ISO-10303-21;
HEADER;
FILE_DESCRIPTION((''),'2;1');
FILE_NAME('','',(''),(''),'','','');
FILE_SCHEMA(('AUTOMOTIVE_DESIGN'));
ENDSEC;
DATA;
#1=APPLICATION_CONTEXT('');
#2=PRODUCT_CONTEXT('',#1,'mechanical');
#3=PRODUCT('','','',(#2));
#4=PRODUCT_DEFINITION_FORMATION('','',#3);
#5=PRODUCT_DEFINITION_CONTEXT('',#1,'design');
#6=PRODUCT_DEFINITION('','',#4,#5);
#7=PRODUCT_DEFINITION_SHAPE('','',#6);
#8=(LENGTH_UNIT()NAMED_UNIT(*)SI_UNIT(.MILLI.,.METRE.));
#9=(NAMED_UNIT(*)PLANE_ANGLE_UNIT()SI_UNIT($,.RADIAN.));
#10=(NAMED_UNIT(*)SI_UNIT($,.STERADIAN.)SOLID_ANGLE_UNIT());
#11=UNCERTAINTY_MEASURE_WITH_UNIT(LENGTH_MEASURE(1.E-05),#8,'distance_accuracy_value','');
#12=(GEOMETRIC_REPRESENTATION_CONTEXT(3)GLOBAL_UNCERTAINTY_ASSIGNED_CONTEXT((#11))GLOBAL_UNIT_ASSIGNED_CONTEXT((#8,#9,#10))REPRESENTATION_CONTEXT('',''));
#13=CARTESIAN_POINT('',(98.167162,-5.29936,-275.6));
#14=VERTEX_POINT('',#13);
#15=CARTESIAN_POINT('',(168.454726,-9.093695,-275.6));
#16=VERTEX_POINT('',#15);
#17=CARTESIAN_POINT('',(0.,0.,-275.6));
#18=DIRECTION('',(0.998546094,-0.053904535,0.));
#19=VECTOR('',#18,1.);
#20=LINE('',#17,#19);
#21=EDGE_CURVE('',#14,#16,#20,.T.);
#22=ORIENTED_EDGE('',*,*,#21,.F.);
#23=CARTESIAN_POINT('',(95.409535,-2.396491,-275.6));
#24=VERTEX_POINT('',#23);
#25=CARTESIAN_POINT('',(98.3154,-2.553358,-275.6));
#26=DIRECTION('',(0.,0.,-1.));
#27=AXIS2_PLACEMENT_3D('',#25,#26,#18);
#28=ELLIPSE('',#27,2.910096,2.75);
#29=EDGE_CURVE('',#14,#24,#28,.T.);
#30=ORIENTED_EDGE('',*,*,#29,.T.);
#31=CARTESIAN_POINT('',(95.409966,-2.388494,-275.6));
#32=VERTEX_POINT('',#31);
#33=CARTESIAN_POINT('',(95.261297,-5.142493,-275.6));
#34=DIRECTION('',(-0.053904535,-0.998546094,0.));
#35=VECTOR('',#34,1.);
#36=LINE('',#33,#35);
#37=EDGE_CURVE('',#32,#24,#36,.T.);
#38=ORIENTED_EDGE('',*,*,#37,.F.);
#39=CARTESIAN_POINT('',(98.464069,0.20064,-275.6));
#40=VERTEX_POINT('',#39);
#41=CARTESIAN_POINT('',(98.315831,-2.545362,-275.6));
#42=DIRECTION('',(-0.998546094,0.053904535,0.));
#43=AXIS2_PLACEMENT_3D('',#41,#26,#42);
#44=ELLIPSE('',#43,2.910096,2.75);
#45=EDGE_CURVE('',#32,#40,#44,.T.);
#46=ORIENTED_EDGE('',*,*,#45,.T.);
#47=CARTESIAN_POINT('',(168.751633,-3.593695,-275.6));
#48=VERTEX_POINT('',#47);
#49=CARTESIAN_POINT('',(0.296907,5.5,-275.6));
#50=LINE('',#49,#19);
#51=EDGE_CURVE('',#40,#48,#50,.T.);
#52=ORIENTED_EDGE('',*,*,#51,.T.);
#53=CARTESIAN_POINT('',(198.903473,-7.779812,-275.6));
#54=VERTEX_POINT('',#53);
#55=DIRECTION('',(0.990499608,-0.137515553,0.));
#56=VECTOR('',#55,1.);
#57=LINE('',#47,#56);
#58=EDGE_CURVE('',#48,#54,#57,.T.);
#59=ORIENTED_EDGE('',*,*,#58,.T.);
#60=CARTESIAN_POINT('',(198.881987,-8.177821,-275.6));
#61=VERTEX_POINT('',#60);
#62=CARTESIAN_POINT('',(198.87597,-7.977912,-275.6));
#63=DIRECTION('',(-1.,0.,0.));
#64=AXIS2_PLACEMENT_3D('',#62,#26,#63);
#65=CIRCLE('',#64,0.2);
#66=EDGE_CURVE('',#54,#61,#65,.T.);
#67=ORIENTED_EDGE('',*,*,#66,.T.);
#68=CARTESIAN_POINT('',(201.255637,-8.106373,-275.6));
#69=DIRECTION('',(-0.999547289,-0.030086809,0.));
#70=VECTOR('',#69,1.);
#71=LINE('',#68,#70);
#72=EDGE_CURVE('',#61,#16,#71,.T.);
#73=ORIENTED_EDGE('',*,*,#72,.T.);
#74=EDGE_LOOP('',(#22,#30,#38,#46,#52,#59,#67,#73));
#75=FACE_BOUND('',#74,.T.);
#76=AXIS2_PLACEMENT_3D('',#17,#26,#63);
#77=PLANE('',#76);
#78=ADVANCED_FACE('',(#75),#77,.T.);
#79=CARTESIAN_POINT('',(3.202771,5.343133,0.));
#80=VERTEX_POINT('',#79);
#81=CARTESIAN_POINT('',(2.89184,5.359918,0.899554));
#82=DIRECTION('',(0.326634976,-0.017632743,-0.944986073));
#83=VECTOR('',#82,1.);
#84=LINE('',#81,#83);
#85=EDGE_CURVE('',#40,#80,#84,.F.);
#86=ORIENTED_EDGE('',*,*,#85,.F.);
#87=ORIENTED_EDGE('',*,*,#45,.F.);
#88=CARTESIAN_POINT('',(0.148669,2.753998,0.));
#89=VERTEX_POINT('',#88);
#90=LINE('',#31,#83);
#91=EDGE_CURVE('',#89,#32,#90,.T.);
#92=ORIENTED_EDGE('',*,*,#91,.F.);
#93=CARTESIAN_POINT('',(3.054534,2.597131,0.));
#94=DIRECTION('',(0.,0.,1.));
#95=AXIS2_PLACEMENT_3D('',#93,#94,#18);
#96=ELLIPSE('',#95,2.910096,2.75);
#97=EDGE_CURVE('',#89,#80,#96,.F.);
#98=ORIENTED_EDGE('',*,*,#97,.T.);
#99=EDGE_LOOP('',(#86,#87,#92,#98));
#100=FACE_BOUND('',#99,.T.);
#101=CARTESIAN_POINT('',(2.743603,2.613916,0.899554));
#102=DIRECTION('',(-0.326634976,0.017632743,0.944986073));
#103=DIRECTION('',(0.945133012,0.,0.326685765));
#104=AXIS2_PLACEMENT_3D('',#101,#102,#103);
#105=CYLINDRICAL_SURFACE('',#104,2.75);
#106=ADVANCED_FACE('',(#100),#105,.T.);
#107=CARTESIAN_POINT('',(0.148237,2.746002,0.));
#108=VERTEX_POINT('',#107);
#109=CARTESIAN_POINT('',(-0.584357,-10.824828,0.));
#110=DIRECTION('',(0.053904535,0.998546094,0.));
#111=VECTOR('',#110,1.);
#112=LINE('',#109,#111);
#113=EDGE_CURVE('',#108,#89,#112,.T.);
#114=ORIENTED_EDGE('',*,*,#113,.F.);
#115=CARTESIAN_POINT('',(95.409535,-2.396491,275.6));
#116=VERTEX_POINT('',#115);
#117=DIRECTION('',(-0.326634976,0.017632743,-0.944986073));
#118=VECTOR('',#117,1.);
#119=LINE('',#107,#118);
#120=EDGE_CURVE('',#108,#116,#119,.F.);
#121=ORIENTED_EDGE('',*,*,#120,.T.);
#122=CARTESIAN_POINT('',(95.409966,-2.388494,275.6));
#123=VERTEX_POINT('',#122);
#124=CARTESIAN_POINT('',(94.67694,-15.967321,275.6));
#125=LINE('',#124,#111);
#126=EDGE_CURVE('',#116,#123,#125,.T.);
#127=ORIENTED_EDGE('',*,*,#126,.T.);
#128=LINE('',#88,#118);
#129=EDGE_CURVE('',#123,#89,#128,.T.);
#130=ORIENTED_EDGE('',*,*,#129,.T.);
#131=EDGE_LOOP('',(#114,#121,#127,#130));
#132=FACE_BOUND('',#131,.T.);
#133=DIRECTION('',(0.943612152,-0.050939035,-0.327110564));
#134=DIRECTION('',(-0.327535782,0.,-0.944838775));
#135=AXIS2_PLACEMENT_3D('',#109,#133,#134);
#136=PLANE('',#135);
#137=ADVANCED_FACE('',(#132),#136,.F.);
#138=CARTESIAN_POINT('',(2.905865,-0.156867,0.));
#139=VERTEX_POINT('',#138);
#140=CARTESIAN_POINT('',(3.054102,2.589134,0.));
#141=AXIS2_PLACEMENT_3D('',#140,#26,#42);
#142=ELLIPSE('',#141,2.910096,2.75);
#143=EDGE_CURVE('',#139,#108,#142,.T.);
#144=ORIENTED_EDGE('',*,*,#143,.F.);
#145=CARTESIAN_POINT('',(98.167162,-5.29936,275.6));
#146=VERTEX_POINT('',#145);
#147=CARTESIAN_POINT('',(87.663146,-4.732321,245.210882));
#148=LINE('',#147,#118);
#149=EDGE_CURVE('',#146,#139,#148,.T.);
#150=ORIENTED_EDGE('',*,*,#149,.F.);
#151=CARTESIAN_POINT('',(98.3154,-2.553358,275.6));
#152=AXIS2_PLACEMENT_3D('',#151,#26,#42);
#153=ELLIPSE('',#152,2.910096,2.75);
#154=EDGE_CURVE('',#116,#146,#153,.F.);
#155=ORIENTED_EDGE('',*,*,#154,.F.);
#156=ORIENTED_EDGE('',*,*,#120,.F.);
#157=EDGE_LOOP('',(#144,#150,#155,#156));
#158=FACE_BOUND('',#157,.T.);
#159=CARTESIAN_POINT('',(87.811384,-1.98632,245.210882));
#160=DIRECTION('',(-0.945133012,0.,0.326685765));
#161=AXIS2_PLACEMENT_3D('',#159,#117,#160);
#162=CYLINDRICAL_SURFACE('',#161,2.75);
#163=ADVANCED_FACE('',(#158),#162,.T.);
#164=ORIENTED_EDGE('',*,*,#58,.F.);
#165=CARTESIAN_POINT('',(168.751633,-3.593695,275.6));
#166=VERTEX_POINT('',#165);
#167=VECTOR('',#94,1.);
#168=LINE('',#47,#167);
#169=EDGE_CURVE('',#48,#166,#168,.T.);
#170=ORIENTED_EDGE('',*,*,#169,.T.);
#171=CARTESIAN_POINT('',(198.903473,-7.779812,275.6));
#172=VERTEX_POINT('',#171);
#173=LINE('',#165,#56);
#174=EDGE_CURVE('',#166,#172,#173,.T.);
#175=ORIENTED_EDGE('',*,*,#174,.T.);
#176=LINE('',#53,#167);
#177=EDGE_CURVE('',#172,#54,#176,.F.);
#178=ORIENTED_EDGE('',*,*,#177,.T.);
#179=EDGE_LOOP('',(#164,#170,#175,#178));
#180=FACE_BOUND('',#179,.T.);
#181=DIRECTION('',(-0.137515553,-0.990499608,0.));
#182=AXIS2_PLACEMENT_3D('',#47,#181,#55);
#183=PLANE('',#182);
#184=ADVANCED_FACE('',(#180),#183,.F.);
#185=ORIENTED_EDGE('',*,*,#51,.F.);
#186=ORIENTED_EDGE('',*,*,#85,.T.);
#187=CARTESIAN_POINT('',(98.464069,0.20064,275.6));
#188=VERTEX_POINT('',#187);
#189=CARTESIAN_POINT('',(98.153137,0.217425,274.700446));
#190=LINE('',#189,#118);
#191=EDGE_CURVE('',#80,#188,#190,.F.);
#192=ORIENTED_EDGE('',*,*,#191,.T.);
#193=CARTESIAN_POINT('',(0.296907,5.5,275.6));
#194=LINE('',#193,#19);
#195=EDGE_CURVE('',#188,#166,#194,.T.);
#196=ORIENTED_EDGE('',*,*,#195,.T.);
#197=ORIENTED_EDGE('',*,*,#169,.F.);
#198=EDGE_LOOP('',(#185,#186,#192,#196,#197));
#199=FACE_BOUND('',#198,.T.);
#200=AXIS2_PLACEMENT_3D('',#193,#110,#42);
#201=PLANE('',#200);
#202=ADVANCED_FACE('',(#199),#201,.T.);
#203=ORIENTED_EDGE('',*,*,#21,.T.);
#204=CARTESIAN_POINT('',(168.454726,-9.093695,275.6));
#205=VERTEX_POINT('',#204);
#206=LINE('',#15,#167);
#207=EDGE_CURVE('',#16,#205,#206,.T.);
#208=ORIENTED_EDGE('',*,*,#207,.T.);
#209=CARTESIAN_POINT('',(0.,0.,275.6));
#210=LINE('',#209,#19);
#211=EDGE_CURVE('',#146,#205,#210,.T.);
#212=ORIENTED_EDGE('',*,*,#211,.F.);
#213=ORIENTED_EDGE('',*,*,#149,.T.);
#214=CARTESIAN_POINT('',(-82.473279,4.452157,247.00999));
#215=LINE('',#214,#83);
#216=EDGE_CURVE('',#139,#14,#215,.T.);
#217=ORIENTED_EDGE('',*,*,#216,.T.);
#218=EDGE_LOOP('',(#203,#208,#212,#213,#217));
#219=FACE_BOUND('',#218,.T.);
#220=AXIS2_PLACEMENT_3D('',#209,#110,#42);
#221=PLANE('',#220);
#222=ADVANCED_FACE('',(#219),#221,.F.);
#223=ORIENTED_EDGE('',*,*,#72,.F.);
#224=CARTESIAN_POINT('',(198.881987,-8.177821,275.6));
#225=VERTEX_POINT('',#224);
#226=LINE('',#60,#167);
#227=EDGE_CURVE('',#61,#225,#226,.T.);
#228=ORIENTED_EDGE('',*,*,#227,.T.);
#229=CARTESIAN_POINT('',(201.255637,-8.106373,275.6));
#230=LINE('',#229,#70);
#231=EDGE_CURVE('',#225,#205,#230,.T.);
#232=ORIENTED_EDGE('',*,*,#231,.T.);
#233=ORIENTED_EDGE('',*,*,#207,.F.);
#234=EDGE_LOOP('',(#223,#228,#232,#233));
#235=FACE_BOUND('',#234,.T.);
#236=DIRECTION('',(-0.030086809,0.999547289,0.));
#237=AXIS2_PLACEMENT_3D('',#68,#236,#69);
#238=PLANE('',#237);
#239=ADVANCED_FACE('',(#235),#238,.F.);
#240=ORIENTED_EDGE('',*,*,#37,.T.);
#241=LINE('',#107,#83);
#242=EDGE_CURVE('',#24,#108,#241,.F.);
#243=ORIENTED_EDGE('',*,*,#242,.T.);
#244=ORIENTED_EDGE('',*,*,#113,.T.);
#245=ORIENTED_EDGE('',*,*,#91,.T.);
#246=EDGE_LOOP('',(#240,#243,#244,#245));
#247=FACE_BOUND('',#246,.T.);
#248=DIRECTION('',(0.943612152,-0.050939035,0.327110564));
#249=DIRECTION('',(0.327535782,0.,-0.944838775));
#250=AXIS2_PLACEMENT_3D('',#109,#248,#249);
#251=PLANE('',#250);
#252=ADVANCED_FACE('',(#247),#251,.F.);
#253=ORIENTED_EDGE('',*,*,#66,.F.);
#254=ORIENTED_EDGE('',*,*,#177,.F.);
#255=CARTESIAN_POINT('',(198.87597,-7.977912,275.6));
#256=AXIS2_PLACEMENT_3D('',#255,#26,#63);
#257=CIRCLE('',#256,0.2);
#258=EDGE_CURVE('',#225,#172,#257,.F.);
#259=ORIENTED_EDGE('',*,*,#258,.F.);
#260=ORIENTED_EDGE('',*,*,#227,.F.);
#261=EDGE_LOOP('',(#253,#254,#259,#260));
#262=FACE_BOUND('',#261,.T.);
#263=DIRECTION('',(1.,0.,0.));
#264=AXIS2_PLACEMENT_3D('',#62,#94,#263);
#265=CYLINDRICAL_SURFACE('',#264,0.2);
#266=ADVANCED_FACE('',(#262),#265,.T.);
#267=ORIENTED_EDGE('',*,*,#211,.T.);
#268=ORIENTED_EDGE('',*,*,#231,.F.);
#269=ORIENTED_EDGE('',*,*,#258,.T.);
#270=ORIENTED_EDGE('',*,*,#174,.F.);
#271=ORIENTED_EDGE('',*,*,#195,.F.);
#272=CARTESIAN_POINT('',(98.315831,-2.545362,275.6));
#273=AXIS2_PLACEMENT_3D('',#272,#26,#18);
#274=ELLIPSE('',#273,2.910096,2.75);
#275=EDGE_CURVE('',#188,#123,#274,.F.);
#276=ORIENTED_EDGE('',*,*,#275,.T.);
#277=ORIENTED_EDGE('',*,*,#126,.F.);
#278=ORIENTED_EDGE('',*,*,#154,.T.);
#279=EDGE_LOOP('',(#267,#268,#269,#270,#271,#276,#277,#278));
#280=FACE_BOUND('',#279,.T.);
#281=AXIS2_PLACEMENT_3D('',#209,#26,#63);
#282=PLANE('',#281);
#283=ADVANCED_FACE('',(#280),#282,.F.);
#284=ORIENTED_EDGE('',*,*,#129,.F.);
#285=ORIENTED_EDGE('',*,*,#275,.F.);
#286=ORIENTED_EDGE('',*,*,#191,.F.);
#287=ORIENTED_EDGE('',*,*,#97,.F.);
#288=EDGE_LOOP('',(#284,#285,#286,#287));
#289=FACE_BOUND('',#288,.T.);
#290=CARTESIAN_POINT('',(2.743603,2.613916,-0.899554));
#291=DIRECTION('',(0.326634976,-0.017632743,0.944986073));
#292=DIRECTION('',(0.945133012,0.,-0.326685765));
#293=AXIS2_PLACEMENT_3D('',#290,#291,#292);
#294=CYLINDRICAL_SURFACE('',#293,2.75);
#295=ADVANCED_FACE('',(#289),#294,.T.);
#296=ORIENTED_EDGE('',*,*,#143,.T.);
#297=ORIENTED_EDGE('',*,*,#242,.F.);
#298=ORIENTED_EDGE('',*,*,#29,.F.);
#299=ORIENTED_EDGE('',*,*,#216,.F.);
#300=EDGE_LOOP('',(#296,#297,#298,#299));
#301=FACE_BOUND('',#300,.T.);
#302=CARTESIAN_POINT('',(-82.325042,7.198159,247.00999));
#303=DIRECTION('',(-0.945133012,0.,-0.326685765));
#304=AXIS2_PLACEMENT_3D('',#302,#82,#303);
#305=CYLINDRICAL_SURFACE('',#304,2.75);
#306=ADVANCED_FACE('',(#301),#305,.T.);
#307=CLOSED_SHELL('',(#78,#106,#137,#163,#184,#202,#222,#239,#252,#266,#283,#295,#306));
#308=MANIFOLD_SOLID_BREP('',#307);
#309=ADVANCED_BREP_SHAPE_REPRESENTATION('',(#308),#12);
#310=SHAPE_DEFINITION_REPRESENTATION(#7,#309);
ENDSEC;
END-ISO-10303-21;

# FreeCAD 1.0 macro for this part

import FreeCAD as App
import Part
import Sketcher
from FreeCAD import Vector
Q = App.Units.Quantity


def edges_at(feature, points):
    """Names of the edges that pass closest to the given points."""
    edges = feature.Shape.Edges
    near = lambda p: min(range(len(edges)), key=lambda i: edges[i].distToShape(Part.Vertex(*p))[0])
    return sorted({f"Edge{near(p) + 1}" for p in points})


def add_polygon(sketch, points):
    """Adds a closed chain of lines whose ends are joined by coincident constraints."""
    first, n = sketch.GeometryCount, len(points)
    for a, b in zip(points, points[1:] + points[:1]):
        sketch.addGeometry(Part.LineSegment(App.Vector(*a, 0), App.Vector(*b, 0)), False)
    for i in range(n):
        sketch.addConstraint(Sketcher.Constraint("Coincident", first + i, 2, first + (i + 1) % n, 1))

doc = App.newDocument("Part")
body = doc.addObject("PartDesign::Body", "Body")

# Sketch on XY plane
sketch1 = body.newObject("Sketcher::SketchObject", "Sketch")
sketch1.AttachmentSupport = (doc.getObject("XY_Plane"), [""])
sketch1.MapMode = "FlatFace"
add_polygon(sketch1, [(0, 0), (201, -11), (201, -5), (0, 6)])  # lines 0-3
sketch1.addConstraint(Sketcher.Constraint("Coincident", 3, 2, -1, 1))
sketch1.addConstraint(Sketcher.Constraint("Perpendicular", 0, 1))
sketch1.addConstraint(Sketcher.Constraint("Perpendicular", 1, 2))
sketch1.addConstraint(Sketcher.Constraint("Perpendicular", 2, 3))
sketch1.addConstraint(Sketcher.Constraint("Distance", 0, 201.4))
sketch1.addConstraint(Sketcher.Constraint("DistanceY", -1, 1, 2, 2, 5.5))
sketch1.addConstraint(Sketcher.Constraint("Angle", 0, Q("-3.09 deg")))
pad1 = body.newObject("PartDesign::Pad", "Pad")
pad1.Profile = sketch1
pad1.Length = 551.2
pad1.Midplane = True

# Sketch on an angled plane
sketch2 = body.newObject("Sketcher::SketchObject", "Sketch001")
sketch2.Placement = App.Placement(Vector(0.296907, 5.5, 0), App.Rotation(Vector(0.998546094, -0.053904535, 0), Vector(0, 0, -1.000000001), Vector(0.053904535, 0.998546094, 0), "ZXY"))
add_polygon(sketch2, [(0, 0), (95, 276), (0, 276)])  # lines 0-2
sketch2.addConstraint(Sketcher.Constraint("Horizontal", 1))
sketch2.addConstraint(Sketcher.Constraint("Vertical", 2))
sketch2.addConstraint(Sketcher.Constraint("Coincident", 2, 2, -1, 1))
sketch2.addConstraint(Sketcher.Constraint("DistanceX", 1, 2, 1, 1, 95.4))
sketch2.addConstraint(Sketcher.Constraint("DistanceY", 2, 2, 2, 1, 275.6))
pocket1 = body.newObject("PartDesign::Pocket", "Pocket")
pocket1.Profile = sketch2
pocket1.Type = "ThroughAll"

# Sketch on an angled plane
sketch3 = body.newObject("Sketcher::SketchObject", "Sketch002")
sketch3.Placement = App.Placement(Vector(0.296907, 5.5, 0), App.Rotation(Vector(0.998546094, -0.053904535, 0), Vector(0, 0, -1.000000001), Vector(0.053904535, 0.998546094, 0), "ZXY"))
add_polygon(sketch3, [(95, -276), (0, 0), (0, -276)])  # lines 0-2
sketch3.addConstraint(Sketcher.Constraint("Vertical", 1))
sketch3.addConstraint(Sketcher.Constraint("Horizontal", 2))
sketch3.addConstraint(Sketcher.Constraint("Coincident", 0, 2, -1, 1))
sketch3.addConstraint(Sketcher.Constraint("DistanceX", 2, 1, 2, 2, 95.4))
sketch3.addConstraint(Sketcher.Constraint("DistanceY", 1, 2, 1, 1, 275.6))
pocket2 = body.newObject("PartDesign::Pocket", "Pocket001")
pocket2.Profile = sketch3
pocket2.Type = "ThroughAll"

# Sketch on XY plane
sketch4 = body.newObject("Sketcher::SketchObject", "Sketch003")
sketch4.AttachmentSupport = (doc.getObject("XY_Plane"), [""])
sketch4.MapMode = "FlatFace"
sketch4.AttachmentOffset = App.Placement(Vector(0, 0, 275.6), App.Rotation())
add_polygon(sketch4, [(168.8, -3.6), (201.3, -8.1), (201.4, -5.4)])  # lines 0-2
sketch4.addConstraint(Sketcher.Constraint("Perpendicular", 1, 2))
sketch4.addConstraint(Sketcher.Constraint("Distance", 2, 32.7))
sketch4.addConstraint(Sketcher.Constraint("Angle", 1, Q("86.91 deg")))
sketch4.addConstraint(Sketcher.Constraint("DistanceY", 0, 2, 1, 2, 2.75))
sketch4.addConstraint(Sketcher.Constraint("DistanceX", -1, 1, 1, 2, 201.40409))
sketch4.addConstraint(Sketcher.Constraint("DistanceY", 0, 2, -1, 1, 8.106373))
pocket3 = body.newObject("PartDesign::Pocket", "Pocket002")
pocket3.Profile = sketch4
pocket3.Type = "ThroughAll"

# Sketch on XY plane
sketch5 = body.newObject("Sketcher::SketchObject", "Sketch004")
sketch5.AttachmentSupport = (doc.getObject("XY_Plane"), [""])
sketch5.MapMode = "FlatFace"
sketch5.AttachmentOffset = App.Placement(Vector(0, 0, 275.6), App.Rotation())
add_polygon(sketch5, [(201.3, -8.1), (168.5, -9.1), (201.1, -10.9)])  # lines 0-2
sketch5.addConstraint(Sketcher.Constraint("Perpendicular", 1, 2))
sketch5.addConstraint(Sketcher.Constraint("Distance", 1, 32.7))
sketch5.addConstraint(Sketcher.Constraint("Angle", 1, Q("-3.09 deg")))
sketch5.addConstraint(Sketcher.Constraint("DistanceY", 1, 2, 2, 2, 2.75))
sketch5.addConstraint(Sketcher.Constraint("DistanceX", -1, 1, 0, 2, 168.454726))
sketch5.addConstraint(Sketcher.Constraint("DistanceY", 0, 2, -1, 1, 9.093695))
pocket4 = body.newObject("PartDesign::Pocket", "Pocket003")
pocket4.Profile = sketch5
pocket4.Type = "ThroughAll"
doc.recompute()

fillet = body.newObject("PartDesign::Fillet", "Fillet")
fillet.Base = (pocket4, edges_at(pocket4, [
    (47.631, -2.571, -137.8),
    (47.928, 2.929, -137.8),
    (47.631, -2.571, 137.8),
    (47.928, 2.929, 137.8),
]))
fillet.Radius = 2.75
doc.recompute()

fillet2 = body.newObject("PartDesign::Fillet", "Fillet001")
fillet2.Base = (fillet, edges_at(fillet, [(201.256, -8.106, 0)]))
fillet2.Radius = 0.2

doc.recompute()
